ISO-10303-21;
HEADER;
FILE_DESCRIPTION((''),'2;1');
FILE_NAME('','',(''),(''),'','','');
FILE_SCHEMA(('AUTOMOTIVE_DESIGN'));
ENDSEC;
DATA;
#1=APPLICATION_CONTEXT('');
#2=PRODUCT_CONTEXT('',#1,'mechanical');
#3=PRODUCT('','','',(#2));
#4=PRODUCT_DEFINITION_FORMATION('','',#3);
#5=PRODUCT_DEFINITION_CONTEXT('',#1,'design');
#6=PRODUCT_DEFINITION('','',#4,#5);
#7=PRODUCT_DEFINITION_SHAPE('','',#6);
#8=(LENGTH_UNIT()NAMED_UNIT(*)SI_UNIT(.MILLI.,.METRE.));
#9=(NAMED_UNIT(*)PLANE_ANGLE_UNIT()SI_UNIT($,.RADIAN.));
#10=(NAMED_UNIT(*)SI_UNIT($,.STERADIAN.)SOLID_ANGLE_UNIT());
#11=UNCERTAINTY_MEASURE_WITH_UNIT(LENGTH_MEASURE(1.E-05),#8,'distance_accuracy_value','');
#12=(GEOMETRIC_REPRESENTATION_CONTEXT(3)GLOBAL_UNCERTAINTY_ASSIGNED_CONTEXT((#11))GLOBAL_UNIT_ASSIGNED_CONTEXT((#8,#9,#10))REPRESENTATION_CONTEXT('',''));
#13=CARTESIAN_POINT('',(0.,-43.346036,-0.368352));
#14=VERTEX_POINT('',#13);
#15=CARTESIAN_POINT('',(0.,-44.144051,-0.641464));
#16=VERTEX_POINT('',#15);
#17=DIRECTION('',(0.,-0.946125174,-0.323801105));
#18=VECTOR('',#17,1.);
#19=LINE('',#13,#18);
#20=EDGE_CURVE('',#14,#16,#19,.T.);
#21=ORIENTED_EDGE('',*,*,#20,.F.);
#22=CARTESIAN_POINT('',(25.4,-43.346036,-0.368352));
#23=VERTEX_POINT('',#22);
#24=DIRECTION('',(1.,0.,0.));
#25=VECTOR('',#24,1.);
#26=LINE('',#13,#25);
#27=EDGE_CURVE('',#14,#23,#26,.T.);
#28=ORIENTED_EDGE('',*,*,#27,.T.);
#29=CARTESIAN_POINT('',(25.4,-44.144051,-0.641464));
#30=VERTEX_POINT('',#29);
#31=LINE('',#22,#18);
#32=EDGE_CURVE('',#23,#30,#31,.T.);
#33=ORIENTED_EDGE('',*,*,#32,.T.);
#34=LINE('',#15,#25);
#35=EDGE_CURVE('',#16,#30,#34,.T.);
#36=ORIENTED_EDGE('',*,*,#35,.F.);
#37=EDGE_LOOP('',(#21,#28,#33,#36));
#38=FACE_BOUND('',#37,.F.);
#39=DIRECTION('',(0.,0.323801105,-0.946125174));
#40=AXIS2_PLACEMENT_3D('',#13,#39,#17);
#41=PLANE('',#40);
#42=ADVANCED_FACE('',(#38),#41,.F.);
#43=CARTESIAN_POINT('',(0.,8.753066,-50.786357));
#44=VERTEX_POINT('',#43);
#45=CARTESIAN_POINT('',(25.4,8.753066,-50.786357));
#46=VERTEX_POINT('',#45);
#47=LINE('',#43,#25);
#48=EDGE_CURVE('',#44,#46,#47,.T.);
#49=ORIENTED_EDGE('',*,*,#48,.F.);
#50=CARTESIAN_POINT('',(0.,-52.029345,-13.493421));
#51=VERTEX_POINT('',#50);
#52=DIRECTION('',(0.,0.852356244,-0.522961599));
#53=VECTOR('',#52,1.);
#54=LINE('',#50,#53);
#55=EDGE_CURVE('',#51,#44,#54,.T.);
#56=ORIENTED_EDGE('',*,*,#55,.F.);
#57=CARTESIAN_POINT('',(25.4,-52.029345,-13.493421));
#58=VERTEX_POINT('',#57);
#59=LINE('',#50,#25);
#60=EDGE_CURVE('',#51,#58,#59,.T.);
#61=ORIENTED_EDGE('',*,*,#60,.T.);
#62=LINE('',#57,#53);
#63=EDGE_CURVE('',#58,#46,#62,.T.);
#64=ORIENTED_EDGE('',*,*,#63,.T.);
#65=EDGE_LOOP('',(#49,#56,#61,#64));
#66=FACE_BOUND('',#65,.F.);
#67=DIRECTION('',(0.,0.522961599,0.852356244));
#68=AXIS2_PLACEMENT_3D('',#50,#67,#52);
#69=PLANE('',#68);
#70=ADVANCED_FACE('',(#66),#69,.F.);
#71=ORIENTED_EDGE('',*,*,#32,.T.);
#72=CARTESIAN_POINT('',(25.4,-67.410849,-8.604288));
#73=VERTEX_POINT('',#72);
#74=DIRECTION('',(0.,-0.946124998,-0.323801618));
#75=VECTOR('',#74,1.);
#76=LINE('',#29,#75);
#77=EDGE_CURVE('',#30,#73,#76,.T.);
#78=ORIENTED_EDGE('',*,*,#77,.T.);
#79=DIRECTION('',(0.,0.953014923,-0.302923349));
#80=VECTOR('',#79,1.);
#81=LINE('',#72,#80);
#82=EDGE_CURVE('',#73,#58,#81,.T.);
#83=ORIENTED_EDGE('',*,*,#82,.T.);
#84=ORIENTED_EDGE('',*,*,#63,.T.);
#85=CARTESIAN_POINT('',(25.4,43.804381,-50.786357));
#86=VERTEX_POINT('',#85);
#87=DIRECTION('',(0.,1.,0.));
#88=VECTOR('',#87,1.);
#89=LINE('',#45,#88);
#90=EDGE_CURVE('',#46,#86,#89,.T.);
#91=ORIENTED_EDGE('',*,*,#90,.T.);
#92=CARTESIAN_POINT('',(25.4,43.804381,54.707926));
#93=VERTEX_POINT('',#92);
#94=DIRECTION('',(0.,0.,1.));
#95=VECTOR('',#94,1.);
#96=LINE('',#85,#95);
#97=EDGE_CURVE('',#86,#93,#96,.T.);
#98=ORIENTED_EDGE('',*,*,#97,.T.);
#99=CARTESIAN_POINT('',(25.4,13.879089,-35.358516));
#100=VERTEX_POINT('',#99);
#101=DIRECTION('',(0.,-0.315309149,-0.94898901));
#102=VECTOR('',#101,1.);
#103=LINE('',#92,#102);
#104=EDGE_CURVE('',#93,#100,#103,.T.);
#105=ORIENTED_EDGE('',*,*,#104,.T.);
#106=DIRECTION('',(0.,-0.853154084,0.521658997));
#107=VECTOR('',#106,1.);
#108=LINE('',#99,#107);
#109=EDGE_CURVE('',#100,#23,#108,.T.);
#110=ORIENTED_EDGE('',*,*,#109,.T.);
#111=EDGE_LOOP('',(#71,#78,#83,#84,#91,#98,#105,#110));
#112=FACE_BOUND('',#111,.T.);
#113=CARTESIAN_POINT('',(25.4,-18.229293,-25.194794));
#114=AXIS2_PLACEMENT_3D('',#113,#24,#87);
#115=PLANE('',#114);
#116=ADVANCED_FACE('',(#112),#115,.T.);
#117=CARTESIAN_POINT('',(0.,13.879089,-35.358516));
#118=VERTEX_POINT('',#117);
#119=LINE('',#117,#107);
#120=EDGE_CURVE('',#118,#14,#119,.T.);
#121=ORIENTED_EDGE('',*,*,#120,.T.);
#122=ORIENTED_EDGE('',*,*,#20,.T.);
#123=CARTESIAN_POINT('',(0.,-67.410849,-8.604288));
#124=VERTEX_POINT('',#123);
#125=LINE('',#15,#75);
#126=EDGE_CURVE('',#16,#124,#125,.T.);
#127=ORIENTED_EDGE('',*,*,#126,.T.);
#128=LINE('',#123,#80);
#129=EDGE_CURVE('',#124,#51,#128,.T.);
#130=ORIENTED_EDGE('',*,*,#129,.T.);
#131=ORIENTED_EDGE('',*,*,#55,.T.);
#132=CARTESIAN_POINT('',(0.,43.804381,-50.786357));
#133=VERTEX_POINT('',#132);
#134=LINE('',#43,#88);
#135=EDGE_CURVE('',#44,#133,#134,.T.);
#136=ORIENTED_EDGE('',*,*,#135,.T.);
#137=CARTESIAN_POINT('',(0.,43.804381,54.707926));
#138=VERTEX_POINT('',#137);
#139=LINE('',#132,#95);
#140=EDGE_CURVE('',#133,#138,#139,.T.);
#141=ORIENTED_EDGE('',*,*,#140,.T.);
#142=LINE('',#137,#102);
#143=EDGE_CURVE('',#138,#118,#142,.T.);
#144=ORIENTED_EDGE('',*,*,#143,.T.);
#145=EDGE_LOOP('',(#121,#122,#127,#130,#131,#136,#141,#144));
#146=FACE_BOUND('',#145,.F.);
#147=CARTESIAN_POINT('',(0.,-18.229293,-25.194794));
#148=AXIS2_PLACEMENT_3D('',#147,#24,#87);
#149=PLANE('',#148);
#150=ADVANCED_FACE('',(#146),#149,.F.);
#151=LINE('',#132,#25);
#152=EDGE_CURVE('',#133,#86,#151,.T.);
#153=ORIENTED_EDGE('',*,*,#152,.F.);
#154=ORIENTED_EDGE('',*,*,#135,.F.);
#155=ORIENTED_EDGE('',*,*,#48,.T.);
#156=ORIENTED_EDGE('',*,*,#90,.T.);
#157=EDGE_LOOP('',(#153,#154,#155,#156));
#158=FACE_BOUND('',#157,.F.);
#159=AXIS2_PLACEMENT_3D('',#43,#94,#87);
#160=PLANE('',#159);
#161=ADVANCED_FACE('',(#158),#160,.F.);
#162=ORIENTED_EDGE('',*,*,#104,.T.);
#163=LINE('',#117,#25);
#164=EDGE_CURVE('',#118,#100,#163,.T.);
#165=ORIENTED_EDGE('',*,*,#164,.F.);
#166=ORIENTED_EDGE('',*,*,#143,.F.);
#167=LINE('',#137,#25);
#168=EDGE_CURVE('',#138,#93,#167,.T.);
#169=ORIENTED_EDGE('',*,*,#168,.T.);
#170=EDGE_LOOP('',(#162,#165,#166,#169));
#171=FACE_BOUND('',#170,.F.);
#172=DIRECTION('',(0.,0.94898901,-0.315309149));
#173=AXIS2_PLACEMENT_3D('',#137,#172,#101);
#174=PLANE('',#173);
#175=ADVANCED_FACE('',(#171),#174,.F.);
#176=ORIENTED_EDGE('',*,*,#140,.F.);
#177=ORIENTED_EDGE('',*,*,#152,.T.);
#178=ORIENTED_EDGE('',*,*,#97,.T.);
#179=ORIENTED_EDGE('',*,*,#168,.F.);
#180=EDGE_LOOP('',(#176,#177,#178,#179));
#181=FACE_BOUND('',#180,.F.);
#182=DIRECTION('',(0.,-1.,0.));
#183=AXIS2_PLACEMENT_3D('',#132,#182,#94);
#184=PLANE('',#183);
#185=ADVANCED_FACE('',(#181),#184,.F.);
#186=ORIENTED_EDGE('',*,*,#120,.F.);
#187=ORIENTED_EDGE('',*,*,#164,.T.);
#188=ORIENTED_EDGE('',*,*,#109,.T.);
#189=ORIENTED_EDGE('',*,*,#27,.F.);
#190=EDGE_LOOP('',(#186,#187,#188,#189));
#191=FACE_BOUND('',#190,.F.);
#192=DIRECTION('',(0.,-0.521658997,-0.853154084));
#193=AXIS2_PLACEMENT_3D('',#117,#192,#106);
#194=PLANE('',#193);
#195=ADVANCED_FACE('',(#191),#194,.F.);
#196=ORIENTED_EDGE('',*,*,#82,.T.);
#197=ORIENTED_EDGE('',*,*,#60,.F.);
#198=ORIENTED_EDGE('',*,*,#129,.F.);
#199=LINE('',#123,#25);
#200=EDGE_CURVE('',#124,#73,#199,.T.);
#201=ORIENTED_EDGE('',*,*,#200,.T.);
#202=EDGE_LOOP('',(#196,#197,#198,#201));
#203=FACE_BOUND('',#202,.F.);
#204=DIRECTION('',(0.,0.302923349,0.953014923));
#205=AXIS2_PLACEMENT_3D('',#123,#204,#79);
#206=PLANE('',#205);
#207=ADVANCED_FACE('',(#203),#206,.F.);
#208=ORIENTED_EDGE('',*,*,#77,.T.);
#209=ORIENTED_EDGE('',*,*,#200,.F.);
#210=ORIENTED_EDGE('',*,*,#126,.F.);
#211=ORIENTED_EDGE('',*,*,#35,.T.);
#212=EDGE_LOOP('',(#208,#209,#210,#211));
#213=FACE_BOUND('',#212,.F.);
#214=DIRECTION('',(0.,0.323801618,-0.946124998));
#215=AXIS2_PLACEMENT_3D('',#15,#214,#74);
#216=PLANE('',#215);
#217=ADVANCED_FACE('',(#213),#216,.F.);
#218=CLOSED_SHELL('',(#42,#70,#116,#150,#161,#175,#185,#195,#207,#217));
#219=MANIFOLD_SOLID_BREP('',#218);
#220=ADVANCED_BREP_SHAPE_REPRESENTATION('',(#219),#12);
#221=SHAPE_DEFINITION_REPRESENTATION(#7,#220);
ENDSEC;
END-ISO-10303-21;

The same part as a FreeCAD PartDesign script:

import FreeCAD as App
import Part
import Sketcher
Q = App.Units.Quantity

doc = App.newDocument("Part")
body = doc.addObject("PartDesign::Body", "Body")

# Sketch on YZ plane
sketch1 = body.newObject("Sketcher::SketchObject", "Sketch")
sketch1.AttachmentSupport = (doc.getObject("YZ_Plane"), [""])
sketch1.MapMode = "FlatFace"
sketch1.addGeometry([
    Part.LineSegment(App.Vector(13.9, -35.4, 0), App.Vector(-43.3, -0.4, 0)),  # 0
    Part.LineSegment(App.Vector(-43.3, -0.4, 0), App.Vector(-44.1, -0.6, 0)),  # 1
    Part.LineSegment(App.Vector(-44.1, -0.6, 0), App.Vector(-67.4, -8.6, 0)),  # 2
    Part.LineSegment(App.Vector(-67.4, -8.6, 0), App.Vector(-52, -13.5, 0)),  # 3
    Part.LineSegment(App.Vector(-52, -13.5, 0), App.Vector(8.8, -50.8, 0)),  # 4
    Part.LineSegment(App.Vector(8.8, -50.8, 0), App.Vector(43.8, -50.8, 0)),  # 5
    Part.LineSegment(App.Vector(43.8, -50.8, 0), App.Vector(43.8, 54.7, 0)),  # 6
    Part.LineSegment(App.Vector(43.8, 54.7, 0), App.Vector(13.9, -35.4, 0)),  # 7
], False)
sketch1.addConstraint([
    Sketcher.Constraint("Coincident", 0, 2, 1, 1),
    Sketcher.Constraint("Coincident", 1, 2, 2, 1),
    Sketcher.Constraint("Coincident", 2, 2, 3, 1),
    Sketcher.Constraint("Coincident", 3, 2, 4, 1),
    Sketcher.Constraint("Coincident", 4, 2, 5, 1),
    Sketcher.Constraint("Coincident", 5, 2, 6, 1),
    Sketcher.Constraint("Coincident", 6, 2, 7, 1),
    Sketcher.Constraint("Coincident", 7, 2, 0, 1),
    Sketcher.Constraint("Horizontal", 5),
    Sketcher.Constraint("Vertical", 6),
    Sketcher.Constraint("Parallel", 1, 2),
    Sketcher.Constraint("DistanceX", 2, 2, 1, 2, Q("23.266798 mm")),
    Sketcher.Constraint("Distance", 4, Q("71.311041 mm")),
    Sketcher.Constraint("Distance", 7, Q("94.907782 mm")),
    Sketcher.Constraint("DistanceX", 5, 1, 5, 2, Q("35.051315 mm")),
    Sketcher.Constraint("DistanceY", 6, 1, 6, 2, Q("105.494283 mm")),
    Sketcher.Constraint("DistanceX", 1, 2, -1, 1, Q("44.144051 mm")),
    Sketcher.Constraint("DistanceY", 3, 2, -1, 1, Q("13.493421 mm")),
    Sketcher.Constraint("DistanceX", -1, 1, 5, 2, Q("43.804381 mm")),
    Sketcher.Constraint("DistanceX", -1, 1, 7, 2, Q("13.879089 mm")),
    Sketcher.Constraint("DistanceX", 3, 2, 0, 2, Q("8.683309 mm")),
    Sketcher.Constraint("DistanceY", 3, 2, 0, 2, Q("13.125069 mm")),
    Sketcher.Constraint("DistanceX", 3, 2, 4, 2, Q("60.782411 mm")),
    Sketcher.Constraint("DistanceY", 4, 2, 2, 2, Q("42.182069 mm")),
])
pad1 = body.newObject("PartDesign::Pad", "Pad")
pad1.Profile = sketch1
pad1.Length = Q("1 in")

doc.recompute()
